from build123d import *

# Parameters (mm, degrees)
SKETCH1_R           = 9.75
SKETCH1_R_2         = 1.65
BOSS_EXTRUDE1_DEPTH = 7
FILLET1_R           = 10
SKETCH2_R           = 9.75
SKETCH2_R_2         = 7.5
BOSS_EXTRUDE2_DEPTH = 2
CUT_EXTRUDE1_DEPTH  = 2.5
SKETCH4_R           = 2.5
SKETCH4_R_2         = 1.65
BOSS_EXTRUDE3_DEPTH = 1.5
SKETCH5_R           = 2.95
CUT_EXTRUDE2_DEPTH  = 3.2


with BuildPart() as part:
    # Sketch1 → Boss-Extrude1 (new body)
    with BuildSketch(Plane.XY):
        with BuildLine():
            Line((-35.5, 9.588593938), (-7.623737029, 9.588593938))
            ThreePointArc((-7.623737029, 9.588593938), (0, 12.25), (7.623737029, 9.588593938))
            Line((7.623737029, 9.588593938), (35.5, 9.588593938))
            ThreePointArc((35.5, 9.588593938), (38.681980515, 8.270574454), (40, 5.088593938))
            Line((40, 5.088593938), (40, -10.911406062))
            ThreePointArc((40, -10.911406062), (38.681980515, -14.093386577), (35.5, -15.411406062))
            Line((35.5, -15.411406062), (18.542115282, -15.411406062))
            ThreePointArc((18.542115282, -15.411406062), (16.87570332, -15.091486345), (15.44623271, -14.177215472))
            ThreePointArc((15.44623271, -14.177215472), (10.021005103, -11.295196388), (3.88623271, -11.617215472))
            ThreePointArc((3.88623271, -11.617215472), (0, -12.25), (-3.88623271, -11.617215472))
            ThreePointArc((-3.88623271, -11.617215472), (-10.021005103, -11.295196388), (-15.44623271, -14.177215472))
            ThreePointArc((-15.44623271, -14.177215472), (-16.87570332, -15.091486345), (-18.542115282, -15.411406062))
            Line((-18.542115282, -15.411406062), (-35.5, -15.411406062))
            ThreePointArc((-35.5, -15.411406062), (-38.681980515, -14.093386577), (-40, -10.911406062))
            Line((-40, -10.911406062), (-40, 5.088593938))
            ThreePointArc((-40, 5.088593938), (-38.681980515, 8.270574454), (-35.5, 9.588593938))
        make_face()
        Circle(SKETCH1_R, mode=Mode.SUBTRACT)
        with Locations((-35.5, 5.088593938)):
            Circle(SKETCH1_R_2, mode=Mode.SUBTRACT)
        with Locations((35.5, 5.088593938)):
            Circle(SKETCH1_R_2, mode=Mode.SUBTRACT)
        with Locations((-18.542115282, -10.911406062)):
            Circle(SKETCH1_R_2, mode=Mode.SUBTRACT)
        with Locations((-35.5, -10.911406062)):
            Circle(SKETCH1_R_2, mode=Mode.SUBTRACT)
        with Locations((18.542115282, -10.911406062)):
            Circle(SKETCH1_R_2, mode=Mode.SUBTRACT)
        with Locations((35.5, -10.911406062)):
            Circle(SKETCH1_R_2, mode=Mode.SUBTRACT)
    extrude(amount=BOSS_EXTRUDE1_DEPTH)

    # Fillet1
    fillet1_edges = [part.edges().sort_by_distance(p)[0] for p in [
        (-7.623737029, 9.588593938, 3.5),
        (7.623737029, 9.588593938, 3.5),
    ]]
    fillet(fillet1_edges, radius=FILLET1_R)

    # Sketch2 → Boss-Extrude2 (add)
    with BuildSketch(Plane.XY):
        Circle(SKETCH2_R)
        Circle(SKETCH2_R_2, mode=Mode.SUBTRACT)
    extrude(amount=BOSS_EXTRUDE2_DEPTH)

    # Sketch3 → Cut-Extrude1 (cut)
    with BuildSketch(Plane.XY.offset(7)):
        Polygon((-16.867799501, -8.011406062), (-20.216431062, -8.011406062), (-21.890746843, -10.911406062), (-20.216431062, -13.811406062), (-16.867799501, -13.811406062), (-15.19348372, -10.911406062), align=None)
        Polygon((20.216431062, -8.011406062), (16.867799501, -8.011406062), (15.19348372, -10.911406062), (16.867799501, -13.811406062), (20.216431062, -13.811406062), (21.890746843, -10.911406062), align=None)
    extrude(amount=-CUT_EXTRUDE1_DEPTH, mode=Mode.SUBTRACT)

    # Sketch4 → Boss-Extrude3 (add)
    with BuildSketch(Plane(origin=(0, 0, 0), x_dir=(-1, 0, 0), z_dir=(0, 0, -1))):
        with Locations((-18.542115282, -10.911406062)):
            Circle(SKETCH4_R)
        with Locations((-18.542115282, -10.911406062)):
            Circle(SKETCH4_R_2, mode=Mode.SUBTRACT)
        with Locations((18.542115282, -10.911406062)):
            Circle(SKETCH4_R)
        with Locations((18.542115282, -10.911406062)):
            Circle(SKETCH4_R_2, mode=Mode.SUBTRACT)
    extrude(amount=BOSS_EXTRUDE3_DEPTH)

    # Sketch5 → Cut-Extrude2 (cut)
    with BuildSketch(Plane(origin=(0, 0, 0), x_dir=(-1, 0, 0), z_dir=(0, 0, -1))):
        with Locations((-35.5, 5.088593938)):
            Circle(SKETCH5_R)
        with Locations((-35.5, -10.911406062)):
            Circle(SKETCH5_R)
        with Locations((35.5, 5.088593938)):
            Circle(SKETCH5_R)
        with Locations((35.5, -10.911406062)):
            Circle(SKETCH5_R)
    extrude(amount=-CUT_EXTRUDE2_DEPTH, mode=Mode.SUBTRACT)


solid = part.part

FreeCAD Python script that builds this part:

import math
import FreeCAD as App
import Part
import Sketcher
from FreeCAD import Vector
Q = App.Units.Quantity


def edges_at(feature, points):
    """Names of the edges that pass closest to the given points."""
    edges = feature.Shape.Edges
    near = lambda p: min(range(len(edges)), key=lambda i: edges[i].distToShape(Part.Vertex(*p))[0])
    return sorted({f"Edge{near(p) + 1}" for p in points})

doc = App.newDocument("Part")
body = doc.addObject("PartDesign::Body", "Body")

sketch1 = body.newObject("Sketcher::SketchObject", "Sketch")
sketch1.AttachmentSupport = (doc.getObject("XY_Plane"), [""])
sketch1.MapMode = "FlatFace"
sketch1.addGeometry([
    Part.LineSegment(Vector(-7.6, 9.6, 0), Vector(-35.5, 9.6, 0)),
    Part.ArcOfCircle(Part.Circle(Vector(-35.5, 5.1, 0), Vector(0, 0, 1), 4.5), math.radians(90), math.radians(180)),
    Part.LineSegment(Vector(-40, 5.1, 0), Vector(-40, -10.9, 0)),
    Part.ArcOfCircle(Part.Circle(Vector(-35.5, -10.9, 0), Vector(0, 0, 1), 4.5), math.radians(-180), math.radians(-90)),
    Part.LineSegment(Vector(-35.5, -15.4, 0), Vector(-18.5, -15.4, 0)),
    Part.ArcOfCircle(Part.Circle(Vector(-18.5, -10.9, 0), Vector(0, 0, 1), 4.5), math.radians(-90), math.radians(-47)),
    Part.ArcOfCircle(Part.Circle(Vector(-7.5, -22.5, 0), Vector(0, 0, 1), 11.5), math.radians(72), math.radians(133)),
    Part.ArcOfCircle(Part.Circle(Vector(0, 0, 0), Vector(0, 0, 1), 12.2), math.radians(-108), math.radians(-72)),
    Part.ArcOfCircle(Part.Circle(Vector(7.5, -22.5, 0), Vector(0, 0, 1), 11.5), math.radians(47), math.radians(108)),
    Part.ArcOfCircle(Part.Circle(Vector(18.5, -10.9, 0), Vector(0, 0, 1), 4.5), math.radians(-133), math.radians(-90)),
    Part.LineSegment(Vector(18.5, -15.4, 0), Vector(35.5, -15.4, 0)),
    Part.ArcOfCircle(Part.Circle(Vector(35.5, -10.9, 0), Vector(0, 0, 1), 4.5), math.radians(-90), math.radians(0)),
    Part.LineSegment(Vector(40, -10.9, 0), Vector(40, 5.1, 0)),
    Part.ArcOfCircle(Part.Circle(Vector(35.5, 5.1, 0), Vector(0, 0, 1), 4.5), math.radians(0), math.radians(90)),
    Part.LineSegment(Vector(35.5, 9.6, 0), Vector(7.6, 9.6, 0)),
    Part.ArcOfCircle(Part.Circle(Vector(0, 0, 0), Vector(0, 0, 1), 12.2), math.radians(52), math.radians(128)),
    Part.Circle(Vector(35.5, -10.9, 0), Vector(0, 0, 1), 1.6),
    Part.Circle(Vector(18.5, -10.9, 0), Vector(0, 0, 1), 1.6),
    Part.Circle(Vector(-18.5, -10.9, 0), Vector(0, 0, 1), 1.6),
    Part.Circle(Vector(-35.5, -10.9, 0), Vector(0, 0, 1), 1.6),
    Part.Circle(Vector(0, 0, 0), Vector(0, 0, 1), 9.8),
    Part.Circle(Vector(35.5, 5.1, 0), Vector(0, 0, 1), 1.6),
    Part.Circle(Vector(-35.5, 5.1, 0), Vector(0, 0, 1), 1.6),
], False)
sketch1.addConstraint([
    Sketcher.Constraint("Tangent", 0, 2, 1, 1),
    Sketcher.Constraint("Tangent", 1, 2, 2, 1),
    Sketcher.Constraint("Tangent", 2, 2, 3, 1),
    Sketcher.Constraint("Tangent", 3, 2, 4, 1),
    Sketcher.Constraint("Tangent", 4, 2, 5, 1),
    Sketcher.Constraint("Tangent", 5, 2, 6, 2),
    Sketcher.Constraint("Tangent", 6, 1, 7, 1),
    Sketcher.Constraint("Tangent", 7, 2, 8, 2),
    Sketcher.Constraint("Tangent", 8, 1, 9, 1),
    Sketcher.Constraint("Tangent", 9, 2, 10, 1),
    Sketcher.Constraint("Tangent", 10, 2, 11, 1),
    Sketcher.Constraint("Tangent", 11, 2, 12, 1),
    Sketcher.Constraint("Tangent", 12, 2, 13, 1),
    Sketcher.Constraint("Tangent", 13, 2, 14, 1),
    Sketcher.Constraint("Coincident", 14, 2, 15, 1),
    Sketcher.Constraint("Coincident", 15, 2, 0, 1),
    Sketcher.Constraint("Horizontal", 0),
    Sketcher.Constraint("Vertical", 2),
    Sketcher.Constraint("Horizontal", 4),
    Sketcher.Constraint("Horizontal", 10),
    Sketcher.Constraint("Vertical", 12),
    Sketcher.Constraint("Horizontal", 14),
    Sketcher.Constraint("Coincident", 7, 3, -1, 1),
    Sketcher.Constraint("Coincident", 15, 3, -1, 1),
    Sketcher.Constraint("Coincident", 20, 3, -1, 1),
    Sketcher.Constraint("Coincident", 16, 3, 11, 3),
    Sketcher.Constraint("Coincident", 17, 3, 9, 3),
    Sketcher.Constraint("Coincident", 18, 3, 5, 3),
    Sketcher.Constraint("Coincident", 19, 3, 3, 3),
    Sketcher.Constraint("Coincident", 21, 3, 13, 3),
    Sketcher.Constraint("Coincident", 22, 3, 1, 3),
    Sketcher.Constraint("Equal", 1, 3),
    Sketcher.Constraint("Equal", 3, 5),
    Sketcher.Constraint("Equal", 6, 8),
    Sketcher.Constraint("Equal", 5, 9),
    Sketcher.Constraint("Equal", 9, 11),
    Sketcher.Constraint("Equal", 11, 13),
    Sketcher.Constraint("Equal", 7, 15),
    Sketcher.Constraint("Equal", 16, 17),
    Sketcher.Constraint("Equal", 17, 18),
    Sketcher.Constraint("Equal", 18, 19),
    Sketcher.Constraint("Equal", 19, 21),
    Sketcher.Constraint("Equal", 21, 22),
    Sketcher.Constraint("Symmetric", 5, 3, 9, 3, -2),
    Sketcher.Constraint("Symmetric", 1, 3, 13, 3, -2),
    Sketcher.Constraint("Diameter", 16, 3.3),
    Sketcher.Constraint("Diameter", 20, 19.5),
    Sketcher.Constraint("Radius", 1, 4.5),
    Sketcher.Constraint("Radius", 6, 11.5),
    Sketcher.Constraint("DistanceY", 2, 2, 2, 1, 16.0),
    Sketcher.Constraint("Radius", 7, 12.25),
    Sketcher.Constraint("DistanceX", 1, 2, -1, 1, 40.0),
    Sketcher.Constraint("DistanceX", 5, 2, 6, 1, 11.56),
    Sketcher.Constraint("DistanceY", 5, 2, 6, 1, 2.56),
])
pad1 = body.newObject("PartDesign::Pad", "Pad")
pad1.Profile = sketch1
pad1.Length = 7
doc.recompute()

fillet = body.newObject("PartDesign::Fillet", "Fillet")
fillet.Base = (pad1, edges_at(pad1, [(-7.624, 9.589, 3.5), (7.624, 9.589, 3.5)]))
fillet.Radius = 10

sketch2 = body.newObject("Sketcher::SketchObject", "Sketch001")
sketch2.AttachmentSupport = (doc.getObject("XY_Plane"), [""])
sketch2.MapMode = "FlatFace"
sketch2.addGeometry([
    Part.Circle(Vector(0, 0, 0), Vector(0, 0, 1), 10),
    Part.Circle(Vector(0, 0, 0), Vector(0, 0, 1), 8),
], False)
sketch2.addConstraint([
    Sketcher.Constraint("Coincident", 0, 3, -1, 1),
    Sketcher.Constraint("Coincident", 1, 3, -1, 1),
    Sketcher.Constraint("Diameter", 1, 15.0),
    Sketcher.Constraint("Diameter", 0, 19.5),
])
pad2 = body.newObject("PartDesign::Pad", "Pad001")
pad2.Profile = sketch2
pad2.Length = 2

sketch3 = body.newObject("Sketcher::SketchObject", "Sketch002")
sketch3.AttachmentSupport = (doc.getObject("XY_Plane"), [""])
sketch3.MapMode = "FlatFace"
sketch3.AttachmentOffset = App.Placement(Vector(0, 0, 7), App.Rotation())
sketch3.addGeometry([
    Part.LineSegment(Vector(-16.9, -8, 0), Vector(-20.2, -8, 0)),
    Part.LineSegment(Vector(-20.2, -8, 0), Vector(-21.9, -10.9, 0)),
    Part.LineSegment(Vector(-21.9, -10.9, 0), Vector(-20.2, -13.8, 0)),
    Part.LineSegment(Vector(-20.2, -13.8, 0), Vector(-16.9, -13.8, 0)),
    Part.LineSegment(Vector(-16.9, -13.8, 0), Vector(-15.2, -10.9, 0)),
    Part.LineSegment(Vector(-15.2, -10.9, 0), Vector(-16.9, -8, 0)),
    Part.LineSegment(Vector(20.2, -8, 0), Vector(16.9, -8, 0)),
    Part.LineSegment(Vector(16.9, -8, 0), Vector(15.2, -10.9, 0)),
    Part.LineSegment(Vector(15.2, -10.9, 0), Vector(16.9, -13.8, 0)),
    Part.LineSegment(Vector(16.9, -13.8, 0), Vector(20.2, -13.8, 0)),
    Part.LineSegment(Vector(20.2, -13.8, 0), Vector(21.9, -10.9, 0)),
    Part.LineSegment(Vector(21.9, -10.9, 0), Vector(20.2, -8, 0)),
], False)
sketch3.addConstraint([
    Sketcher.Constraint("Coincident", 0, 2, 1, 1),
    Sketcher.Constraint("Coincident", 1, 2, 2, 1),
    Sketcher.Constraint("Coincident", 2, 2, 3, 1),
    Sketcher.Constraint("Coincident", 3, 2, 4, 1),
    Sketcher.Constraint("Coincident", 4, 2, 5, 1),
    Sketcher.Constraint("Coincident", 5, 2, 0, 1),
    Sketcher.Constraint("Coincident", 6, 2, 7, 1),
    Sketcher.Constraint("Coincident", 7, 2, 8, 1),
    Sketcher.Constraint("Coincident", 8, 2, 9, 1),
    Sketcher.Constraint("Coincident", 9, 2, 10, 1),
    Sketcher.Constraint("Coincident", 10, 2, 11, 1),
    Sketcher.Constraint("Coincident", 11, 2, 6, 1),
    Sketcher.Constraint("Horizontal", 0),
    Sketcher.Constraint("Horizontal", 3),
    Sketcher.Constraint("Horizontal", 6),
    Sketcher.Constraint("Horizontal", 9),
    Sketcher.Constraint("Symmetric", 5, 2, 6, 2, -2),
    Sketcher.Constraint("Symmetric", 4, 2, 7, 2, -2),
    Sketcher.Constraint("Symmetric", 3, 2, 8, 2, -2),
    Sketcher.Constraint("Symmetric", 1, 2, 10, 2, -2),
    Sketcher.Constraint("Parallel", 1, 4),
    Sketcher.Constraint("Parallel", 2, 5),
    Sketcher.Constraint("Parallel", 4, 7),
    Sketcher.Constraint("Parallel", 7, 10),
    Sketcher.Constraint("Parallel", 8, 11),
    Sketcher.Constraint("Horizontal", 1, 2, 4, 2),
    Sketcher.Constraint("Vertical", 0, 2, 2, 2),
    Sketcher.Constraint("Angle", 1, Q("-120 deg")),
    Sketcher.Constraint("DistanceY", 1, 2, 0, 2, 2.9),
    Sketcher.Constraint("DistanceX", 0, 2, 0, 1, 3.348632),
    Sketcher.Constraint("DistanceX", 3, 2, -1, 1, 16.8678),
    Sketcher.Constraint("DistanceY", 0, 2, -1, 1, 8.011406),
])
pocket1 = body.newObject("PartDesign::Pocket", "Pocket")
pocket1.Profile = sketch3
pocket1.Length = 2.5

sketch4 = body.newObject("Sketcher::SketchObject", "Sketch003")
sketch4.AttachmentSupport = (doc.getObject("XY_Plane"), [""])
sketch4.MapMode = "FlatFace"
sketch4.addGeometry([
    Part.Circle(Vector(18.5, -10.9, 0), Vector(0, 0, 1), 2.5),
    Part.Circle(Vector(18.5, -10.9, 0), Vector(0, 0, 1), 1.6),
    Part.Circle(Vector(-18.5, -10.9, 0), Vector(0, 0, 1), 2.5),
    Part.Circle(Vector(-18.5, -10.9, 0), Vector(0, 0, 1), 1.6),
], False)
sketch4.addConstraint([
    Sketcher.Constraint("Coincident", 1, 3, 0, 3),
    Sketcher.Constraint("Coincident", 3, 3, 2, 3),
    Sketcher.Constraint("Equal", 0, 2),
    Sketcher.Constraint("Equal", 1, 3),
    Sketcher.Constraint("Symmetric", 0, 3, 2, 3, -2),
    Sketcher.Constraint("Diameter", 0, 5.0),
    Sketcher.Constraint("Diameter", 1, 3.3),
    Sketcher.Constraint("DistanceX", 2, 3, 0, 3, 37.084231),
    Sketcher.Constraint("DistanceY", 0, 3, -1, 1, 10.911406),
])
pad3 = body.newObject("PartDesign::Pad", "Pad002")
pad3.Profile = sketch4
pad3.Length = 1.5
pad3.Reversed = True

sketch5 = body.newObject("Sketcher::SketchObject", "Sketch004")
sketch5.AttachmentSupport = (doc.getObject("XY_Plane"), [""])
sketch5.MapMode = "FlatFace"
sketch5.addGeometry([
    Part.Circle(Vector(35.5, 5.1, 0), Vector(0, 0, 1), 3),
    Part.Circle(Vector(35.5, -10.9, 0), Vector(0, 0, 1), 3),
    Part.Circle(Vector(-35.5, 5.1, 0), Vector(0, 0, 1), 3),
    Part.Circle(Vector(-35.5, -10.9, 0), Vector(0, 0, 1), 3),
], False)
sketch5.addConstraint([
    Sketcher.Constraint("Equal", 0, 1),
    Sketcher.Constraint("Equal", 1, 2),
    Sketcher.Constraint("Equal", 2, 3),
    Sketcher.Constraint("Symmetric", 0, 3, 2, 3, -2),
    Sketcher.Constraint("Symmetric", 1, 3, 3, 3, -2),
    Sketcher.Constraint("Vertical", 0, 3, 1, 3),
    Sketcher.Constraint("Diameter", 0, 5.9),
    Sketcher.Constraint("DistanceY", 1, 3, 0, 3, 16.0),
    Sketcher.Constraint("DistanceX", 2, 3, 0, 3, 71.0),
    Sketcher.Constraint("DistanceY", -1, 1, 0, 3, 5.088594),
])
pocket2 = body.newObject("PartDesign::Pocket", "Pocket001")
pocket2.Profile = sketch5
pocket2.Length = 3.2
pocket2.Reversed = True

doc.recompute()
